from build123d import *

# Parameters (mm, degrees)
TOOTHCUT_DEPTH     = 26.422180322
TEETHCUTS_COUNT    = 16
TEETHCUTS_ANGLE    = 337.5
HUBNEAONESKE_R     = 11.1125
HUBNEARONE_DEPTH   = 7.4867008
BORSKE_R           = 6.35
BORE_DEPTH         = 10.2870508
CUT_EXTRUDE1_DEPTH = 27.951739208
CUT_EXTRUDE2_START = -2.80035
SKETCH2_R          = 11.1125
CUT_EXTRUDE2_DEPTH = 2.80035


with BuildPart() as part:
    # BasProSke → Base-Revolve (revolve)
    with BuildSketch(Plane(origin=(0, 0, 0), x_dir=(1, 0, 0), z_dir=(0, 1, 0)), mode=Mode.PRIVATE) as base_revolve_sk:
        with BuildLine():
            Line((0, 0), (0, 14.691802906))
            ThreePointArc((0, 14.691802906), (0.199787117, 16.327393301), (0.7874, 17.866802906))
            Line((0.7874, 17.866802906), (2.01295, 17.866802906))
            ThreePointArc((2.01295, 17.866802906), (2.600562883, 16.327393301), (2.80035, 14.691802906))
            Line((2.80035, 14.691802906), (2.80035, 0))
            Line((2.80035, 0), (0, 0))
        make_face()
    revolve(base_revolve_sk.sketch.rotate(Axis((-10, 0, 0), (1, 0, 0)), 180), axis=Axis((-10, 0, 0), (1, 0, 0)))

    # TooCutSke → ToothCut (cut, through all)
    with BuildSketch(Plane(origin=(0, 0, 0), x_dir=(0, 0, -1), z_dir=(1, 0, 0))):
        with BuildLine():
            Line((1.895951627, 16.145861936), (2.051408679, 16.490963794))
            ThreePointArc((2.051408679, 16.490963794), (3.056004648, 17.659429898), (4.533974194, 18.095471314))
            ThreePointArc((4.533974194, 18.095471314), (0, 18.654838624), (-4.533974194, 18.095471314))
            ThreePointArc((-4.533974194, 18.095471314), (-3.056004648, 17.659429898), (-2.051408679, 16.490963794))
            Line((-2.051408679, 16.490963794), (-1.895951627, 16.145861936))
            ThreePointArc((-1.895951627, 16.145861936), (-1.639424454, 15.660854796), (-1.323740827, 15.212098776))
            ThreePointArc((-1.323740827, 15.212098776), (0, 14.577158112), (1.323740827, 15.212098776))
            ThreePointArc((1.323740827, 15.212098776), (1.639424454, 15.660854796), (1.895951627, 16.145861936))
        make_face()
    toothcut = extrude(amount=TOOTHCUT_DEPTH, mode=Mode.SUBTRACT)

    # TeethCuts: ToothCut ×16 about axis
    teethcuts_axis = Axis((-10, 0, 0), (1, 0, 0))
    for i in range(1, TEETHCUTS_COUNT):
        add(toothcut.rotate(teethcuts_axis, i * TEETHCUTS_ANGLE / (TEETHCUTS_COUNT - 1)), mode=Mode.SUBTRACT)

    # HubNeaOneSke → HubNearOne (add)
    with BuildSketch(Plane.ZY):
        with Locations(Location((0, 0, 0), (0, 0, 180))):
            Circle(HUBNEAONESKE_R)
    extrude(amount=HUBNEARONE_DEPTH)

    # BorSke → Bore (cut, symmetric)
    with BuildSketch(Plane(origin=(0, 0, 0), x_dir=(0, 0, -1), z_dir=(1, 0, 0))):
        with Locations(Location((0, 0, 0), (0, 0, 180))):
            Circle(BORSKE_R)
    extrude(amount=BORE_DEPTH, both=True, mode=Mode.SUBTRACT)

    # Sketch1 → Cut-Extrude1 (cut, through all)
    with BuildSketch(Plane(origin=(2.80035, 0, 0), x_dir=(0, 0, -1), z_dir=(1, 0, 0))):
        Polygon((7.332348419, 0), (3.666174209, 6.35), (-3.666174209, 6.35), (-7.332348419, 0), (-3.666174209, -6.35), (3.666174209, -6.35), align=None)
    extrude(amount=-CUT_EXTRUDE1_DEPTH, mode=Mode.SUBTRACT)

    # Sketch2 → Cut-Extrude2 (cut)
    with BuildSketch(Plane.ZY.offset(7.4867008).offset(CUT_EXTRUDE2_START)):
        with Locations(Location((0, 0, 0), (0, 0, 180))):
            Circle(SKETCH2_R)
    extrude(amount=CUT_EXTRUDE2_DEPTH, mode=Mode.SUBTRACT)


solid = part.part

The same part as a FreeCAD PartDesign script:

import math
import FreeCAD as App
import Part
import Sketcher

V = App.Vector
Q = App.Units.Quantity


def add_polygon(sketch, points):
    """Adds a closed chain of lines whose ends are joined by coincident constraints."""
    first, n = sketch.GeometryCount, len(points)
    for a, b in zip(points, points[1:] + points[:1]):
        sketch.addGeometry(Part.LineSegment(App.Vector(*a, 0), App.Vector(*b, 0)), False)
    for i in range(n):
        sketch.addConstraint(Sketcher.Constraint("Coincident", first + i, 2, first + (i + 1) % n, 1))

doc = App.newDocument("Part")
params = doc.addObject("Spreadsheet::Sheet", "Params")
for row, (alias, value) in enumerate([
    ("revolution_angle", "360 deg"),
    ("sketch3_diameter", "0.875 in"),
    ("pad1_length", "7.486701 mm"),
    ("sketch4_diameter", "0.5 in"),
    ("pocket2_length", "20.574102 mm"),
    ("sketch6_diameter", "0.875 in"),
    ("pocket4_length", "2.80035 mm"),
], start=1):
    params.set(f"A{row}", alias)
    params.set(f"B{row}", "=" + value)
    params.setAlias(f"B{row}", alias)

body = doc.addObject("PartDesign::Body", "Body")

# Sketch on XZ plane
sketch1 = body.newObject("Sketcher::SketchObject", "Sketch")
sketch1.AttachmentSupport = (doc.getObject("XZ_Plane"), [""])
sketch1.MapMode = "FlatFace"
sketch1.addGeometry(Part.LineSegment(V(0, -14.691803, 0), V(0, 0, 0)), False)
sketch1.addGeometry(Part.LineSegment(V(0, 0, 0), V(2.80035, 0, 0)), False)
sketch1.addGeometry(Part.LineSegment(V(2.80035, 0, 0), V(2.80035, -14.691803, 0)), False)
sketch1.addGeometry(Part.ArcOfCircle(Part.Circle(V(-3.99456, -14.691803, 0), V(0, 0, 1), 6.79491), math.radians(-27.856684), math.radians(0)), False)
sketch1.addGeometry(Part.LineSegment(V(2.01295, -17.866803, 0), V(0.7874, -17.866803, 0)), False)
sketch1.addGeometry(Part.ArcOfCircle(Part.Circle(V(6.79491, -14.691803, 0), V(0, 0, 1), 6.79491), math.radians(180), math.radians(207.856684)), False)
sketch1.addConstraint(Sketcher.Constraint("Coincident", 0, 2, 1, 1))
sketch1.addConstraint(Sketcher.Constraint("Coincident", 1, 2, 2, 1))
sketch1.addConstraint(Sketcher.Constraint("Tangent", 2, 2, 3, 2))
sketch1.addConstraint(Sketcher.Constraint("Coincident", 3, 1, 4, 1))
sketch1.addConstraint(Sketcher.Constraint("Coincident", 4, 2, 5, 2))
sketch1.addConstraint(Sketcher.Constraint("Tangent", 5, 1, 0, 1))
sketch1.addConstraint(Sketcher.Constraint("Vertical", 0))
sketch1.addConstraint(Sketcher.Constraint("Horizontal", 1))
sketch1.addConstraint(Sketcher.Constraint("Vertical", 2))
sketch1.addConstraint(Sketcher.Constraint("Horizontal", 4))
sketch1.addConstraint(Sketcher.Constraint("Coincident", 0, 2, -1, 1))
sketch1.addConstraint(Sketcher.Constraint("Equal", 3, 5))
sketch1.addConstraint(Sketcher.Constraint("Horizontal", 3, 3, 5, 3))
sketch1.addConstraint(Sketcher.Constraint("DistanceX", -1, 1, 4, 2, Q("0.031 in")))
sketch1.addConstraint(Sketcher.Constraint("Radius", 3, 6.79491))
sketch1.addConstraint(Sketcher.Constraint("DistanceX", 1, 1, 1, 2, 2.80035))
sketch1.addConstraint(Sketcher.Constraint("DistanceY", 0, 1, 0, 2, 14.691803))
revolution = body.newObject("PartDesign::Revolution", "Revolution")
revolution.Profile = sketch1
revolution.ReferenceAxis = (sketch1, ["H_Axis"])
revolution.setExpression("Angle", "Params.revolution_angle")

# Sketch on YZ plane
sketch2 = body.newObject("Sketcher::SketchObject", "Sketch001")
sketch2.AttachmentSupport = (doc.getObject("YZ_Plane"), [""])
sketch2.MapMode = "FlatFace"
sketch2.addGeometry(Part.LineSegment(V(16.145862, -1.895952, 0), V(16.490964, -2.051409, 0)), False)
sketch2.addGeometry(Part.ArcOfCircle(Part.Circle(V(15.37265, -4.533974, 0), V(0, 0, 1), 2.722822), math.radians(0), math.radians(65.75)), False)
sketch2.addGeometry(Part.ArcOfCircle(Part.Circle(V(0, 0, 0), V(0, 0, 1), 18.654839), math.radians(-14.066357), math.radians(14.066357)), False)
sketch2.addGeometry(Part.ArcOfCircle(Part.Circle(V(15.37265, 4.533974, 0), V(0, 0, 1), 2.722822), math.radians(-65.75), math.radians(0)), False)
sketch2.addGeometry(Part.LineSegment(V(16.490964, 2.051409, 0), V(16.145862, 1.895952, 0)), False)
sketch2.addGeometry(Part.ArcOfCircle(Part.Circle(V(17.927953, -2.060143, 0), V(0, 0, 1), 4.338955), math.radians(114.25), math.radians(128.75)), False)
sketch2.addGeometry(Part.ArcOfCircle(Part.Circle(V(16.274513, 0, 0), V(0, 0, 1), 1.697355), math.radians(128.75), math.radians(231.25)), False)
sketch2.addGeometry(Part.ArcOfCircle(Part.Circle(V(17.927953, 2.060143, 0), V(0, 0, 1), 4.338955), math.radians(-128.75), math.radians(-114.25)), False)
sketch2.addConstraint(Sketcher.Constraint("Tangent", 0, 2, 1, 2))
sketch2.addConstraint(Sketcher.Constraint("Coincident", 1, 1, 2, 1))
sketch2.addConstraint(Sketcher.Constraint("Coincident", 2, 2, 3, 2))
sketch2.addConstraint(Sketcher.Constraint("Tangent", 3, 1, 4, 1))
sketch2.addConstraint(Sketcher.Constraint("Tangent", 4, 2, 5, 1))
sketch2.addConstraint(Sketcher.Constraint("Tangent", 5, 2, 6, 1))
sketch2.addConstraint(Sketcher.Constraint("Tangent", 6, 2, 7, 1))
sketch2.addConstraint(Sketcher.Constraint("Tangent", 7, 2, 0, 1))
sketch2.addConstraint(Sketcher.Constraint("Coincident", 2, 3, -1, 1))
sketch2.addConstraint(Sketcher.Constraint("Equal", 1, 3))
sketch2.addConstraint(Sketcher.Constraint("Equal", 5, 7))
sketch2.addConstraint(Sketcher.Constraint("Symmetric", 1, 3, 3, 3, -1))
sketch2.addConstraint(Sketcher.Constraint("Symmetric", 5, 3, 7, 3, -1))
sketch2.addConstraint(Sketcher.Constraint("Horizontal", 3, 3, 2, 2))
sketch2.addConstraint(Sketcher.Constraint("Angle", 0, Q("-24.25 deg")))
sketch2.addConstraint(Sketcher.Constraint("Radius", 1, 2.722822))
sketch2.addConstraint(Sketcher.Constraint("Radius", 2, 18.654839))
sketch2.addConstraint(Sketcher.Constraint("Radius", 5, 4.338955))
sketch2.addConstraint(Sketcher.Constraint("Radius", 6, 1.697355))
sketch2.addConstraint(Sketcher.Constraint("Distance", 0, 0.3785))
sketch2.addConstraint(Sketcher.Constraint("DistanceX", -1, 1, 5, 2, 15.212099))
pocket1 = body.newObject("PartDesign::Pocket", "Pocket")
pocket1.Profile = sketch2
pocket1.Type = "ThroughAll"
pocket1.Reversed = True
doc.recompute()

polarpattern = body.newObject("PartDesign::PolarPattern", "PolarPattern")
polarpattern.Originals = [pocket1]
polarpattern.Axis = (doc.getObject("X_Axis"), [""])
polarpattern.Angle = 360
polarpattern.Occurrences = 16
body.Tip = polarpattern

# Sketch on YZ plane
sketch3 = body.newObject("Sketcher::SketchObject", "Sketch002")
sketch3.AttachmentSupport = (doc.getObject("YZ_Plane"), [""])
sketch3.MapMode = "FlatFace"
sketch3.addGeometry(Part.Circle(V(0, 0, 0), V(0, 0, 1), 11.1125), False)
sketch3.addConstraint(Sketcher.Constraint("Coincident", 0, 3, -1, 1))
sketch3.addConstraint(Sketcher.Constraint("Diameter", 0, Q("0.875 in")))
sketch3.setExpression("Constraints[1]", "Params.sketch3_diameter")
pad1 = body.newObject("PartDesign::Pad", "Pad")
pad1.Profile = sketch3
pad1.setExpression("Length", "Params.pad1_length")
pad1.Reversed = True

# Sketch on YZ plane
sketch4 = body.newObject("Sketcher::SketchObject", "Sketch003")
sketch4.AttachmentSupport = (doc.getObject("YZ_Plane"), [""])
sketch4.MapMode = "FlatFace"
sketch4.addGeometry(Part.Circle(V(0, 0, 0), V(0, 0, 1), 6.35), False)
sketch4.addConstraint(Sketcher.Constraint("Coincident", 0, 3, -1, 1))
sketch4.addConstraint(Sketcher.Constraint("Diameter", 0, Q("0.5 in")))
sketch4.setExpression("Constraints[1]", "Params.sketch4_diameter")
pocket2 = body.newObject("PartDesign::Pocket", "Pocket001")
pocket2.Profile = sketch4
pocket2.setExpression("Length", "Params.pocket2_length")
pocket2.Midplane = True

# Sketch on YZ plane
sketch5 = body.newObject("Sketcher::SketchObject", "Sketch004")
sketch5.AttachmentSupport = (doc.getObject("YZ_Plane"), [""])
sketch5.MapMode = "FlatFace"
sketch5.AttachmentOffset = App.Placement(V(0, 0, 2.80035), App.Rotation())
add_polygon(sketch5, [(0, -7.332348), (6.35, -3.666174), (6.35, 3.666174), (0, 7.332348), (-6.35, 3.666174), (-6.35, -3.666174)])  # lines 0-5
sketch5.addConstraint(Sketcher.Constraint("Vertical", 1))
sketch5.addConstraint(Sketcher.Constraint("Vertical", 4))
sketch5.addConstraint(Sketcher.Constraint("Symmetric", 0, 2, 3, 2, -1, 1))
sketch5.addConstraint(Sketcher.Constraint("Symmetric", 2, 2, 5, 2, -1, 1))
sketch5.addConstraint(Sketcher.Constraint("PointOnObject", 2, 2, -2))
sketch5.addConstraint(Sketcher.Constraint("Parallel", 2, 5))
sketch5.addConstraint(Sketcher.Constraint("Horizontal", 1, 2, 3, 2))
sketch5.addConstraint(Sketcher.Constraint("Angle", 0, Q("30 deg")))
sketch5.addConstraint(Sketcher.Constraint("DistanceX", 3, 2, 1, 2, Q("0.5 in")))
sketch5.addConstraint(Sketcher.Constraint("DistanceY", 1, 1, 1, 2, 7.332348))
pocket3 = body.newObject("PartDesign::Pocket", "Pocket002")
pocket3.Profile = sketch5
pocket3.Type = "ThroughAll"

# Sketch on YZ plane
sketch6 = body.newObject("Sketcher::SketchObject", "Sketch005")
sketch6.AttachmentSupport = (doc.getObject("YZ_Plane"), [""])
sketch6.MapMode = "FlatFace"
sketch6.AttachmentOffset = App.Placement(V(0, 0, -4.686351), App.Rotation())
sketch6.addGeometry(Part.Circle(V(0, 0, 0), V(0, 0, 1), 11.1125), False)
sketch6.addConstraint(Sketcher.Constraint("Coincident", 0, 3, -1, 1))
sketch6.addConstraint(Sketcher.Constraint("Diameter", 0, Q("0.875 in")))
sketch6.setExpression("Constraints[1]", "Params.sketch6_diameter")
pocket4 = body.newObject("PartDesign::Pocket", "Pocket003")
pocket4.Profile = sketch6
pocket4.setExpression("Length", "Params.pocket4_length")

doc.recompute()
